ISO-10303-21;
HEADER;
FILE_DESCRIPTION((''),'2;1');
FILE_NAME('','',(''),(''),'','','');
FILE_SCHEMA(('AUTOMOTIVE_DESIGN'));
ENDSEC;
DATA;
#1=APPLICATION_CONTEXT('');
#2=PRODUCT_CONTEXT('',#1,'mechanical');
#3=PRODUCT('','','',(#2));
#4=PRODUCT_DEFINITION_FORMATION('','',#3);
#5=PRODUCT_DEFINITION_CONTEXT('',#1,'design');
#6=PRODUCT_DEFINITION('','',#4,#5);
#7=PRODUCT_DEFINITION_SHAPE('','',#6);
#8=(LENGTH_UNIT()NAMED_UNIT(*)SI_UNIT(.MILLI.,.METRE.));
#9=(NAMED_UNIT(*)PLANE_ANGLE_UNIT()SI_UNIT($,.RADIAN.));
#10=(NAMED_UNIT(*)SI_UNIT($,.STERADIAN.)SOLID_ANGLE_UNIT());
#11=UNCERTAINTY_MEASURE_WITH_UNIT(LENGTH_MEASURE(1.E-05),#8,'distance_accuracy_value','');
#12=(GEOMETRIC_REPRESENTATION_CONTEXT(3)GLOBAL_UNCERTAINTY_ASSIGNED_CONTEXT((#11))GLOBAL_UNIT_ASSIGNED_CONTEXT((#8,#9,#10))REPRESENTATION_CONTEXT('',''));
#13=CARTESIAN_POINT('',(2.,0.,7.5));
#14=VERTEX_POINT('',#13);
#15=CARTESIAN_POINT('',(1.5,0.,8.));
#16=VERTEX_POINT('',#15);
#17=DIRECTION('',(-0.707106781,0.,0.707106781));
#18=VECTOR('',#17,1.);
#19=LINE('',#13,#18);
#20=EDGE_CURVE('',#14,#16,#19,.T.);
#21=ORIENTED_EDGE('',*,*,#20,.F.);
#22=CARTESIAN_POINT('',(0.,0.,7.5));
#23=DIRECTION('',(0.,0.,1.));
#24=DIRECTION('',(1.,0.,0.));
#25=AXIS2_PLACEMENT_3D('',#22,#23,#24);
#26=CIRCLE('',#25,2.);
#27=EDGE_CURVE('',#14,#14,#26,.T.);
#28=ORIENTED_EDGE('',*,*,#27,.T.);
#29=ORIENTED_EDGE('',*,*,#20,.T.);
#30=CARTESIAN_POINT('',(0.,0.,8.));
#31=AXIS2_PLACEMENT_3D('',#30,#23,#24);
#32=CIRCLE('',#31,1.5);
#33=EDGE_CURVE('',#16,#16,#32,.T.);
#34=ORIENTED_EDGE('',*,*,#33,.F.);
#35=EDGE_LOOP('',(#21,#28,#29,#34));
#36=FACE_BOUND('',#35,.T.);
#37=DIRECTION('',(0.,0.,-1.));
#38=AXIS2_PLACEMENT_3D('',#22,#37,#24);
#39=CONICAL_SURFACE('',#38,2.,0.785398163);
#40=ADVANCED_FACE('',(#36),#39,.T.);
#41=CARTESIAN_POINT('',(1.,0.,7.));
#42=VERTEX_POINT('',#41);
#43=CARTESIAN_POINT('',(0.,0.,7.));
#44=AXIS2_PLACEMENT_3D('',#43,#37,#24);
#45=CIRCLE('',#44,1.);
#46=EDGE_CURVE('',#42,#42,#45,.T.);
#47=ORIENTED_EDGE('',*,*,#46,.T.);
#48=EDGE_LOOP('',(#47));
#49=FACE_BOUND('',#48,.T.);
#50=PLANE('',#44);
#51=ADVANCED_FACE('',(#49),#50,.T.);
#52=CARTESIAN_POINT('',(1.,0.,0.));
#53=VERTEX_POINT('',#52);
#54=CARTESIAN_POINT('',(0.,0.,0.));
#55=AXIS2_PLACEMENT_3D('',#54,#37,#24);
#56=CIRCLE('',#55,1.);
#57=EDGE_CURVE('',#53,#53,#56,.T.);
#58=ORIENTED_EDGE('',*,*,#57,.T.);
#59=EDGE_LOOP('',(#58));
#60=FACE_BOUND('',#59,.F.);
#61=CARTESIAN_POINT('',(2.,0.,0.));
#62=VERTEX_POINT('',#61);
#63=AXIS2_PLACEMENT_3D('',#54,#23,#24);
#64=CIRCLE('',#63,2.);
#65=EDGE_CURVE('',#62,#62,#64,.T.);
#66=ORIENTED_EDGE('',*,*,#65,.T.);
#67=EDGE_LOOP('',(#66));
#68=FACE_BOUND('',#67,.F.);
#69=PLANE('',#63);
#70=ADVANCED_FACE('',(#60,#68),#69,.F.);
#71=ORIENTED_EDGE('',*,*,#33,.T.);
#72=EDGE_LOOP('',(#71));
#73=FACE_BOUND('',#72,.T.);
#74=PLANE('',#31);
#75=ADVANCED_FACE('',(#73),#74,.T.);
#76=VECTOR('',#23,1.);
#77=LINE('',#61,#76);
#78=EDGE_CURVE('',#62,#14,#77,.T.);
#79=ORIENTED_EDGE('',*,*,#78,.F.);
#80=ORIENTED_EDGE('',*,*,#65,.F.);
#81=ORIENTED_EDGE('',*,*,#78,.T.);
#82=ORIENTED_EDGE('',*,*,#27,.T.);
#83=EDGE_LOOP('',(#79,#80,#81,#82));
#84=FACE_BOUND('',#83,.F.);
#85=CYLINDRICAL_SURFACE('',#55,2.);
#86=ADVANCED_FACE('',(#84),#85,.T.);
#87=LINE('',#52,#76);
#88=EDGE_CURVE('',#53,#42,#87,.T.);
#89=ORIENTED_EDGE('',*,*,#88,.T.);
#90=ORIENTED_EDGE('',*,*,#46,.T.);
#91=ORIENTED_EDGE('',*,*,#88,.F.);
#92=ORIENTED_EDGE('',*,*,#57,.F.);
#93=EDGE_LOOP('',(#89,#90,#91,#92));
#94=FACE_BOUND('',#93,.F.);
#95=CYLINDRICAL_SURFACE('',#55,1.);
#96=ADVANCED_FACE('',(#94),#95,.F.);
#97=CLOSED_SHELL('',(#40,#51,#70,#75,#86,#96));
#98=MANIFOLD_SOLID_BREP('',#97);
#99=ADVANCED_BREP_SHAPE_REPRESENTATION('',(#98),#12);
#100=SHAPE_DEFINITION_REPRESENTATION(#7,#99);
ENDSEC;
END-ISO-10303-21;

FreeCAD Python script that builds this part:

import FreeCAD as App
import Part
import Sketcher

V = App.Vector


def edges_at(feature, points):
    """Names of the edges that pass closest to the given points."""
    edges = feature.Shape.Edges
    near = lambda p: min(range(len(edges)), key=lambda i: edges[i].distToShape(Part.Vertex(*p))[0])
    return sorted({f"Edge{near(p) + 1}" for p in points})

doc = App.newDocument("Part")
body = doc.addObject("PartDesign::Body", "Body")

sketch1 = body.newObject("Sketcher::SketchObject", "Sketch")
sketch1.AttachmentSupport = (doc.getObject("XY_Plane"), [""])
sketch1.MapMode = "FlatFace"
sketch1.addGeometry(Part.Circle(V(0, 0, 0), V(0, 0, 1), 2), False)
sketch1.addConstraint([
    Sketcher.Constraint("Coincident", 0, 3, -1, 1),
    Sketcher.Constraint("Diameter", 0, 4.0),
])
pad1 = body.newObject("PartDesign::Pad", "Pad")
pad1.Profile = sketch1
pad1.Length = 8

sketch2 = body.newObject("Sketcher::SketchObject", "Sketch001")
sketch2.AttachmentSupport = (doc.getObject("XY_Plane"), [""])
sketch2.MapMode = "FlatFace"
sketch2.addGeometry(Part.Circle(V(0, 0, 0), V(0, 0, 1), 1), False)
sketch2.addConstraint([
    Sketcher.Constraint("Coincident", 0, 3, -1, 1),
    Sketcher.Constraint("Diameter", 0, 2.0),
])
pocket1 = body.newObject("PartDesign::Pocket", "Pocket")
pocket1.Profile = sketch2
pocket1.Length = 7
pocket1.Reversed = True
doc.recompute()

chamfer = body.newObject("PartDesign::Chamfer", "Chamfer")
chamfer.Base = (pocket1, edges_at(pocket1, [(-2, 0, 8)]))
chamfer.Size = 0.5

doc.recompute()
